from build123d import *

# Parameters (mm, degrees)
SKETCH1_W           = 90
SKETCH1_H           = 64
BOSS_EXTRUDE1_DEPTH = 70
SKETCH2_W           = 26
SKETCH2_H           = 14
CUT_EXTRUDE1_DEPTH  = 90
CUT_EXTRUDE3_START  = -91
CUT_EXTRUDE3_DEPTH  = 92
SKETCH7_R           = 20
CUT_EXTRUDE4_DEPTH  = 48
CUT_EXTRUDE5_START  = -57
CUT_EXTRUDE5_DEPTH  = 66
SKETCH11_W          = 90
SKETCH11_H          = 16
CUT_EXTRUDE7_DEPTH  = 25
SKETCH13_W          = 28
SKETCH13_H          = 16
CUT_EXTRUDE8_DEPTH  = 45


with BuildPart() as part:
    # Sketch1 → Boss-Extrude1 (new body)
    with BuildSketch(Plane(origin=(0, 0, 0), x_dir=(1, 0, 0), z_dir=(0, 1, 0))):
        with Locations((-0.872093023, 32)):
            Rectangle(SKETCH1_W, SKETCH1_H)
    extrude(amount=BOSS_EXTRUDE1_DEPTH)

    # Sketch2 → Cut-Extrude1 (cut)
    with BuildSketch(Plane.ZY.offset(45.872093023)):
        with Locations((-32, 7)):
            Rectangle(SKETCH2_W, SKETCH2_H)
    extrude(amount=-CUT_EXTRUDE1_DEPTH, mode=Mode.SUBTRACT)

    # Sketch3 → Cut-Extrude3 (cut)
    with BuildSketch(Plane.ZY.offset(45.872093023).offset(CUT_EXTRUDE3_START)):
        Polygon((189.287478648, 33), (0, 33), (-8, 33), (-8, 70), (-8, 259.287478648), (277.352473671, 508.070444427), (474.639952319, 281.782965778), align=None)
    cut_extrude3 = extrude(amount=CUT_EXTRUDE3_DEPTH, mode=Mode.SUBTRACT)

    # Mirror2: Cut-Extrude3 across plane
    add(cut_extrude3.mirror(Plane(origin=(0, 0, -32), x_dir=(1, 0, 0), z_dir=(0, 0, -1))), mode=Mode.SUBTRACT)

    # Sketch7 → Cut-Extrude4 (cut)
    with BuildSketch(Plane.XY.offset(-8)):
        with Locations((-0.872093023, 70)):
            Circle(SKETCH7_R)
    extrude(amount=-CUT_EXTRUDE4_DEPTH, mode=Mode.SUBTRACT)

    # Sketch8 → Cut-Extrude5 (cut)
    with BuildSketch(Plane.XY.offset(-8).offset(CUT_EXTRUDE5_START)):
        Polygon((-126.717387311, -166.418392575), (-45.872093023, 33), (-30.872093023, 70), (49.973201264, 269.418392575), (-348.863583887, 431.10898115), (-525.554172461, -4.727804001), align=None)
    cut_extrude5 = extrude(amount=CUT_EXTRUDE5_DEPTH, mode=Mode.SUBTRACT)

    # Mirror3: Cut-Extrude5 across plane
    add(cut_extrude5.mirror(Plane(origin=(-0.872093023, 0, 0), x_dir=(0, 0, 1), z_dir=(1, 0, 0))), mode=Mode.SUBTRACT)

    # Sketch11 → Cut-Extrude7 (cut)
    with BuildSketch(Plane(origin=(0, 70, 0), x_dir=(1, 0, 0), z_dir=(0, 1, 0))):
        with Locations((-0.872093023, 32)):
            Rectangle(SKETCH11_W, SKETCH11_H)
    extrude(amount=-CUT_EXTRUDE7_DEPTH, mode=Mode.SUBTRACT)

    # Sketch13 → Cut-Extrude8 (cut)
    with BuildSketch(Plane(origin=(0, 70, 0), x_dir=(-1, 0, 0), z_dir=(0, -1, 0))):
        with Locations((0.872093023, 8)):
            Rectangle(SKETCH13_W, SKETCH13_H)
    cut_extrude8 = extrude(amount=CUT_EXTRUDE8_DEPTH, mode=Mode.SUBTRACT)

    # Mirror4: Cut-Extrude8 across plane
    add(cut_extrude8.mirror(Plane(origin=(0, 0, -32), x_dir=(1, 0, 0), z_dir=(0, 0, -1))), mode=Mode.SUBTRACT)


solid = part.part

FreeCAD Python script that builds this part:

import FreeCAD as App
import Part
import Sketcher
from FreeCAD import Vector
Q = App.Units.Quantity


def add_polygon(sketch, points):
    """Adds a closed chain of lines whose ends are joined by coincident constraints."""
    first, n = sketch.GeometryCount, len(points)
    for a, b in zip(points, points[1:] + points[:1]):
        sketch.addGeometry(Part.LineSegment(App.Vector(*a, 0), App.Vector(*b, 0)), False)
    for i in range(n):
        sketch.addConstraint(Sketcher.Constraint("Coincident", first + i, 2, first + (i + 1) % n, 1))

doc = App.newDocument("Part")
params = doc.addObject("Spreadsheet::Sheet", "Params")
for row, (alias, value) in enumerate([
    ("sketch1_width", "90 mm"),
    ("sketch1_height", "64 mm"),
    ("pad1_length", "70 mm"),
    ("sketch2_width", "14 mm"),
    ("sketch2_height", "26 mm"),
    ("pocket1_length", "90 mm"),
    ("pocket2_length", "92 mm"),
    ("sketch4_diameter", "40 mm"),
    ("pocket3_length", "48 mm"),
    ("pocket4_length", "66 mm"),
    ("sketch6_width", "90 mm"),
    ("sketch6_height", "16 mm"),
    ("pocket5_length", "25 mm"),
    ("sketch7_width", "28 mm"),
    ("sketch7_height", "16 mm"),
    ("pocket6_length", "45 mm"),
], start=1):
    params.set(f"A{row}", alias)
    params.set(f"B{row}", "=" + value)
    params.setAlias(f"B{row}", alias)

body = doc.addObject("PartDesign::Body", "Body")

sketch1 = body.newObject("Sketcher::SketchObject", "Sketch")
sketch1.AttachmentSupport = (doc.getObject("XZ_Plane"), [""])
sketch1.MapMode = "FlatFace"
add_polygon(sketch1, [(-46, -64), (-46, 0), (44, 0), (44, -64)])
sketch1.addConstraint([
    Sketcher.Constraint("Vertical", 0),
    Sketcher.Constraint("Horizontal", 1),
    Sketcher.Constraint("Vertical", 2),
    Sketcher.Constraint("Horizontal", 3),
    Sketcher.Constraint("PointOnObject", 0, 2, -1),
    Sketcher.Constraint("DistanceX", 1, 1, 1, 2, Q("90 mm")),
    Sketcher.Constraint("DistanceY", 0, 1, 0, 2, Q("64 mm")),
    Sketcher.Constraint("DistanceX", 0, 2, -1, 1, Q("45.872093 mm")),
])
sketch1.setExpression("Constraints[9]", "Params.sketch1_width")
sketch1.setExpression("Constraints[10]", "Params.sketch1_height")
pad1 = body.newObject("PartDesign::Pad", "Pad")
pad1.Profile = sketch1
pad1.setExpression("Length", "Params.pad1_length")
pad1.Reversed = True

sketch2 = body.newObject("Sketcher::SketchObject", "Sketch001")
sketch2.AttachmentSupport = (doc.getObject("YZ_Plane"), [""])
sketch2.MapMode = "FlatFace"
sketch2.AttachmentOffset = App.Placement(Vector(0, 0, -45.872093), App.Rotation())
add_polygon(sketch2, [(14, -45), (0, -45), (0, -19), (14, -19)])
sketch2.addConstraint([
    Sketcher.Constraint("Horizontal", 0),
    Sketcher.Constraint("Vertical", 1),
    Sketcher.Constraint("Horizontal", 2),
    Sketcher.Constraint("Vertical", 3),
    Sketcher.Constraint("PointOnObject", 0, 2, -2),
    Sketcher.Constraint("DistanceX", 0, 2, 0, 1, Q("14 mm")),
    Sketcher.Constraint("DistanceY", 1, 1, 1, 2, Q("26 mm")),
    Sketcher.Constraint("DistanceY", 0, 2, -1, 1, Q("45 mm")),
])
sketch2.setExpression("Constraints[9]", "Params.sketch2_width")
sketch2.setExpression("Constraints[10]", "Params.sketch2_height")
pocket1 = body.newObject("PartDesign::Pocket", "Pocket")
pocket1.Profile = sketch2
pocket1.setExpression("Length", "Params.pocket1_length")
pocket1.Reversed = True

sketch3 = body.newObject("Sketcher::SketchObject", "Sketch002")
sketch3.AttachmentSupport = (doc.getObject("YZ_Plane"), [""])
sketch3.MapMode = "FlatFace"
sketch3.AttachmentOffset = App.Placement(Vector(0, 0, 45.127907), App.Rotation())
add_polygon(sketch3, [(33, -8), (33, 189), (282, 475), (508, 277), (259, -8)])
sketch3.addConstraint([
    Sketcher.Constraint("Vertical", 0),
    Sketcher.Constraint("Horizontal", 4),
    Sketcher.Constraint("Perpendicular", 1, 2),
    Sketcher.Constraint("Perpendicular", 2, 3),
    Sketcher.Constraint("Equal", 1, 3),
    Sketcher.Constraint("DistanceX", -1, 1, 0, 2, Q("33 mm")),
    Sketcher.Constraint("DistanceY", 3, 2, -1, 1, Q("8 mm")),
    Sketcher.Constraint("DistanceX", 4, 2, 4, 1, Q("226.287479 mm")),
    Sketcher.Constraint("DistanceY", 0, 1, 0, 2, Q("197.287479 mm")),
    Sketcher.Constraint("Distance", 1, Q("378.574957 mm")),
])
pocket2 = body.newObject("PartDesign::Pocket", "Pocket001")
pocket2.Profile = sketch3
pocket2.setExpression("Length", "Params.pocket2_length")
doc.recompute()

datumplane = body.newObject("PartDesign::Plane", "DatumPlane")
datumplane.AttachmentSupport = (doc.getObject("XY_Plane"), [""])
datumplane.MapMode = "FlatFace"
datumplane.AttachmentOffset = App.Placement(Vector(0, 0, -32), App.Rotation())
mirrored = body.newObject("PartDesign::Mirrored", "Mirrored")
mirrored.Originals = [pocket2]
mirrored.MirrorPlane = (datumplane, [""])
body.Tip = mirrored

sketch4 = body.newObject("Sketcher::SketchObject", "Sketch003")
sketch4.AttachmentSupport = (doc.getObject("XY_Plane"), [""])
sketch4.MapMode = "FlatFace"
sketch4.AttachmentOffset = App.Placement(Vector(0, 0, -8), App.Rotation())
sketch4.addGeometry(Part.Circle(Vector(-1, 70, 0), Vector(0, 0, 1), 20), False)
sketch4.addConstraint([
    Sketcher.Constraint("Diameter", 0, Q("40 mm")),
    Sketcher.Constraint("DistanceY", -1, 1, 0, 3, Q("70 mm")),
    Sketcher.Constraint("DistanceX", 0, 3, -1, 1, Q("0.872093 mm")),
])
sketch4.setExpression("Constraints[0]", "Params.sketch4_diameter")
pocket3 = body.newObject("PartDesign::Pocket", "Pocket002")
pocket3.Profile = sketch4
pocket3.setExpression("Length", "Params.pocket3_length")

sketch5 = body.newObject("Sketcher::SketchObject", "Sketch004")
sketch5.AttachmentSupport = (doc.getObject("XY_Plane"), [""])
sketch5.MapMode = "FlatFace"
sketch5.AttachmentOffset = App.Placement(Vector(0, 0, -65), App.Rotation())
add_polygon(sketch5, [(-127, -166), (-46, 33), (50, 269), (-349, 431), (-526, -5)])
sketch5.addConstraint([
    Sketcher.Constraint("Parallel", 0, 1),
    Sketcher.Constraint("Perpendicular", 1, 2),
    Sketcher.Constraint("Perpendicular", 2, 3),
    Sketcher.Constraint("Perpendicular", 3, 4),
    Sketcher.Constraint("DistanceY", -1, 1, 0, 2, Q("33 mm")),
    Sketcher.Constraint("DistanceX", -1, 1, 1, 2, Q("49.973201 mm")),
    Sketcher.Constraint("Distance", 2, Q("430.365691 mm")),
    Sketcher.Constraint("Distance", 3, Q("470.29062 mm")),
    Sketcher.Constraint("DistanceY", -1, 1, 2, 2, Q("431.108981 mm")),
    Sketcher.Constraint("DistanceY", 1, 2, 2, 2, Q("161.690589 mm")),
])
pocket4 = body.newObject("PartDesign::Pocket", "Pocket003")
pocket4.Profile = sketch5
pocket4.setExpression("Length", "Params.pocket4_length")
pocket4.Reversed = True
doc.recompute()

datumplane2 = body.newObject("PartDesign::Plane", "DatumPlane001")
datumplane2.AttachmentSupport = (doc.getObject("YZ_Plane"), [""])
datumplane2.MapMode = "FlatFace"
datumplane2.AttachmentOffset = App.Placement(Vector(0, 0, -0.872093), App.Rotation())
mirrored2 = body.newObject("PartDesign::Mirrored", "Mirrored001")
mirrored2.Originals = [pocket4]
mirrored2.MirrorPlane = (datumplane2, [""])
body.Tip = mirrored2

sketch6 = body.newObject("Sketcher::SketchObject", "Sketch005")
sketch6.AttachmentSupport = (doc.getObject("XZ_Plane"), [""])
sketch6.MapMode = "FlatFace"
sketch6.AttachmentOffset = App.Placement(Vector(0, 0, -70), App.Rotation())
add_polygon(sketch6, [(-46, -40), (-46, -24), (44, -24), (44, -40)])
sketch6.addConstraint([
    Sketcher.Constraint("Vertical", 0),
    Sketcher.Constraint("Horizontal", 1),
    Sketcher.Constraint("Vertical", 2),
    Sketcher.Constraint("Horizontal", 3),
    Sketcher.Constraint("DistanceX", 1, 1, 1, 2, Q("90 mm")),
    Sketcher.Constraint("DistanceY", 0, 1, 0, 2, Q("16 mm")),
    Sketcher.Constraint("DistanceY", 0, 2, -1, 1, Q("24 mm")),
    Sketcher.Constraint("DistanceX", 0, 2, -1, 1, Q("45.872093 mm")),
])
sketch6.setExpression("Constraints[8]", "Params.sketch6_width")
sketch6.setExpression("Constraints[9]", "Params.sketch6_height")
pocket5 = body.newObject("PartDesign::Pocket", "Pocket004")
pocket5.Profile = sketch6
pocket5.setExpression("Length", "Params.pocket5_length")
pocket5.Reversed = True

sketch7 = body.newObject("Sketcher::SketchObject", "Sketch006")
sketch7.AttachmentSupport = (doc.getObject("XZ_Plane"), [""])
sketch7.MapMode = "FlatFace"
sketch7.AttachmentOffset = App.Placement(Vector(0, 0, -70), App.Rotation())
add_polygon(sketch7, [(13, -16), (13, 0), (-15, 0), (-15, -16)])
sketch7.addConstraint([
    Sketcher.Constraint("Vertical", 0),
    Sketcher.Constraint("Horizontal", 1),
    Sketcher.Constraint("Vertical", 2),
    Sketcher.Constraint("Horizontal", 3),
    Sketcher.Constraint("PointOnObject", 0, 2, -1),
    Sketcher.Constraint("DistanceX", 1, 2, 1, 1, Q("28 mm")),
    Sketcher.Constraint("DistanceY", 0, 1, 0, 2, Q("16 mm")),
    Sketcher.Constraint("DistanceX", -1, 1, 0, 2, Q("13.127907 mm")),
])
sketch7.setExpression("Constraints[9]", "Params.sketch7_width")
sketch7.setExpression("Constraints[10]", "Params.sketch7_height")
pocket6 = body.newObject("PartDesign::Pocket", "Pocket005")
pocket6.Profile = sketch7
pocket6.setExpression("Length", "Params.pocket6_length")
pocket6.Reversed = True
doc.recompute()

datumplane3 = body.newObject("PartDesign::Plane", "DatumPlane002")
datumplane3.AttachmentSupport = (doc.getObject("XY_Plane"), [""])
datumplane3.MapMode = "FlatFace"
datumplane3.AttachmentOffset = App.Placement(Vector(0, 0, -32), App.Rotation())
mirrored3 = body.newObject("PartDesign::Mirrored", "Mirrored002")
mirrored3.Originals = [pocket6]
mirrored3.MirrorPlane = (datumplane3, [""])
body.Tip = mirrored3

doc.recompute()
